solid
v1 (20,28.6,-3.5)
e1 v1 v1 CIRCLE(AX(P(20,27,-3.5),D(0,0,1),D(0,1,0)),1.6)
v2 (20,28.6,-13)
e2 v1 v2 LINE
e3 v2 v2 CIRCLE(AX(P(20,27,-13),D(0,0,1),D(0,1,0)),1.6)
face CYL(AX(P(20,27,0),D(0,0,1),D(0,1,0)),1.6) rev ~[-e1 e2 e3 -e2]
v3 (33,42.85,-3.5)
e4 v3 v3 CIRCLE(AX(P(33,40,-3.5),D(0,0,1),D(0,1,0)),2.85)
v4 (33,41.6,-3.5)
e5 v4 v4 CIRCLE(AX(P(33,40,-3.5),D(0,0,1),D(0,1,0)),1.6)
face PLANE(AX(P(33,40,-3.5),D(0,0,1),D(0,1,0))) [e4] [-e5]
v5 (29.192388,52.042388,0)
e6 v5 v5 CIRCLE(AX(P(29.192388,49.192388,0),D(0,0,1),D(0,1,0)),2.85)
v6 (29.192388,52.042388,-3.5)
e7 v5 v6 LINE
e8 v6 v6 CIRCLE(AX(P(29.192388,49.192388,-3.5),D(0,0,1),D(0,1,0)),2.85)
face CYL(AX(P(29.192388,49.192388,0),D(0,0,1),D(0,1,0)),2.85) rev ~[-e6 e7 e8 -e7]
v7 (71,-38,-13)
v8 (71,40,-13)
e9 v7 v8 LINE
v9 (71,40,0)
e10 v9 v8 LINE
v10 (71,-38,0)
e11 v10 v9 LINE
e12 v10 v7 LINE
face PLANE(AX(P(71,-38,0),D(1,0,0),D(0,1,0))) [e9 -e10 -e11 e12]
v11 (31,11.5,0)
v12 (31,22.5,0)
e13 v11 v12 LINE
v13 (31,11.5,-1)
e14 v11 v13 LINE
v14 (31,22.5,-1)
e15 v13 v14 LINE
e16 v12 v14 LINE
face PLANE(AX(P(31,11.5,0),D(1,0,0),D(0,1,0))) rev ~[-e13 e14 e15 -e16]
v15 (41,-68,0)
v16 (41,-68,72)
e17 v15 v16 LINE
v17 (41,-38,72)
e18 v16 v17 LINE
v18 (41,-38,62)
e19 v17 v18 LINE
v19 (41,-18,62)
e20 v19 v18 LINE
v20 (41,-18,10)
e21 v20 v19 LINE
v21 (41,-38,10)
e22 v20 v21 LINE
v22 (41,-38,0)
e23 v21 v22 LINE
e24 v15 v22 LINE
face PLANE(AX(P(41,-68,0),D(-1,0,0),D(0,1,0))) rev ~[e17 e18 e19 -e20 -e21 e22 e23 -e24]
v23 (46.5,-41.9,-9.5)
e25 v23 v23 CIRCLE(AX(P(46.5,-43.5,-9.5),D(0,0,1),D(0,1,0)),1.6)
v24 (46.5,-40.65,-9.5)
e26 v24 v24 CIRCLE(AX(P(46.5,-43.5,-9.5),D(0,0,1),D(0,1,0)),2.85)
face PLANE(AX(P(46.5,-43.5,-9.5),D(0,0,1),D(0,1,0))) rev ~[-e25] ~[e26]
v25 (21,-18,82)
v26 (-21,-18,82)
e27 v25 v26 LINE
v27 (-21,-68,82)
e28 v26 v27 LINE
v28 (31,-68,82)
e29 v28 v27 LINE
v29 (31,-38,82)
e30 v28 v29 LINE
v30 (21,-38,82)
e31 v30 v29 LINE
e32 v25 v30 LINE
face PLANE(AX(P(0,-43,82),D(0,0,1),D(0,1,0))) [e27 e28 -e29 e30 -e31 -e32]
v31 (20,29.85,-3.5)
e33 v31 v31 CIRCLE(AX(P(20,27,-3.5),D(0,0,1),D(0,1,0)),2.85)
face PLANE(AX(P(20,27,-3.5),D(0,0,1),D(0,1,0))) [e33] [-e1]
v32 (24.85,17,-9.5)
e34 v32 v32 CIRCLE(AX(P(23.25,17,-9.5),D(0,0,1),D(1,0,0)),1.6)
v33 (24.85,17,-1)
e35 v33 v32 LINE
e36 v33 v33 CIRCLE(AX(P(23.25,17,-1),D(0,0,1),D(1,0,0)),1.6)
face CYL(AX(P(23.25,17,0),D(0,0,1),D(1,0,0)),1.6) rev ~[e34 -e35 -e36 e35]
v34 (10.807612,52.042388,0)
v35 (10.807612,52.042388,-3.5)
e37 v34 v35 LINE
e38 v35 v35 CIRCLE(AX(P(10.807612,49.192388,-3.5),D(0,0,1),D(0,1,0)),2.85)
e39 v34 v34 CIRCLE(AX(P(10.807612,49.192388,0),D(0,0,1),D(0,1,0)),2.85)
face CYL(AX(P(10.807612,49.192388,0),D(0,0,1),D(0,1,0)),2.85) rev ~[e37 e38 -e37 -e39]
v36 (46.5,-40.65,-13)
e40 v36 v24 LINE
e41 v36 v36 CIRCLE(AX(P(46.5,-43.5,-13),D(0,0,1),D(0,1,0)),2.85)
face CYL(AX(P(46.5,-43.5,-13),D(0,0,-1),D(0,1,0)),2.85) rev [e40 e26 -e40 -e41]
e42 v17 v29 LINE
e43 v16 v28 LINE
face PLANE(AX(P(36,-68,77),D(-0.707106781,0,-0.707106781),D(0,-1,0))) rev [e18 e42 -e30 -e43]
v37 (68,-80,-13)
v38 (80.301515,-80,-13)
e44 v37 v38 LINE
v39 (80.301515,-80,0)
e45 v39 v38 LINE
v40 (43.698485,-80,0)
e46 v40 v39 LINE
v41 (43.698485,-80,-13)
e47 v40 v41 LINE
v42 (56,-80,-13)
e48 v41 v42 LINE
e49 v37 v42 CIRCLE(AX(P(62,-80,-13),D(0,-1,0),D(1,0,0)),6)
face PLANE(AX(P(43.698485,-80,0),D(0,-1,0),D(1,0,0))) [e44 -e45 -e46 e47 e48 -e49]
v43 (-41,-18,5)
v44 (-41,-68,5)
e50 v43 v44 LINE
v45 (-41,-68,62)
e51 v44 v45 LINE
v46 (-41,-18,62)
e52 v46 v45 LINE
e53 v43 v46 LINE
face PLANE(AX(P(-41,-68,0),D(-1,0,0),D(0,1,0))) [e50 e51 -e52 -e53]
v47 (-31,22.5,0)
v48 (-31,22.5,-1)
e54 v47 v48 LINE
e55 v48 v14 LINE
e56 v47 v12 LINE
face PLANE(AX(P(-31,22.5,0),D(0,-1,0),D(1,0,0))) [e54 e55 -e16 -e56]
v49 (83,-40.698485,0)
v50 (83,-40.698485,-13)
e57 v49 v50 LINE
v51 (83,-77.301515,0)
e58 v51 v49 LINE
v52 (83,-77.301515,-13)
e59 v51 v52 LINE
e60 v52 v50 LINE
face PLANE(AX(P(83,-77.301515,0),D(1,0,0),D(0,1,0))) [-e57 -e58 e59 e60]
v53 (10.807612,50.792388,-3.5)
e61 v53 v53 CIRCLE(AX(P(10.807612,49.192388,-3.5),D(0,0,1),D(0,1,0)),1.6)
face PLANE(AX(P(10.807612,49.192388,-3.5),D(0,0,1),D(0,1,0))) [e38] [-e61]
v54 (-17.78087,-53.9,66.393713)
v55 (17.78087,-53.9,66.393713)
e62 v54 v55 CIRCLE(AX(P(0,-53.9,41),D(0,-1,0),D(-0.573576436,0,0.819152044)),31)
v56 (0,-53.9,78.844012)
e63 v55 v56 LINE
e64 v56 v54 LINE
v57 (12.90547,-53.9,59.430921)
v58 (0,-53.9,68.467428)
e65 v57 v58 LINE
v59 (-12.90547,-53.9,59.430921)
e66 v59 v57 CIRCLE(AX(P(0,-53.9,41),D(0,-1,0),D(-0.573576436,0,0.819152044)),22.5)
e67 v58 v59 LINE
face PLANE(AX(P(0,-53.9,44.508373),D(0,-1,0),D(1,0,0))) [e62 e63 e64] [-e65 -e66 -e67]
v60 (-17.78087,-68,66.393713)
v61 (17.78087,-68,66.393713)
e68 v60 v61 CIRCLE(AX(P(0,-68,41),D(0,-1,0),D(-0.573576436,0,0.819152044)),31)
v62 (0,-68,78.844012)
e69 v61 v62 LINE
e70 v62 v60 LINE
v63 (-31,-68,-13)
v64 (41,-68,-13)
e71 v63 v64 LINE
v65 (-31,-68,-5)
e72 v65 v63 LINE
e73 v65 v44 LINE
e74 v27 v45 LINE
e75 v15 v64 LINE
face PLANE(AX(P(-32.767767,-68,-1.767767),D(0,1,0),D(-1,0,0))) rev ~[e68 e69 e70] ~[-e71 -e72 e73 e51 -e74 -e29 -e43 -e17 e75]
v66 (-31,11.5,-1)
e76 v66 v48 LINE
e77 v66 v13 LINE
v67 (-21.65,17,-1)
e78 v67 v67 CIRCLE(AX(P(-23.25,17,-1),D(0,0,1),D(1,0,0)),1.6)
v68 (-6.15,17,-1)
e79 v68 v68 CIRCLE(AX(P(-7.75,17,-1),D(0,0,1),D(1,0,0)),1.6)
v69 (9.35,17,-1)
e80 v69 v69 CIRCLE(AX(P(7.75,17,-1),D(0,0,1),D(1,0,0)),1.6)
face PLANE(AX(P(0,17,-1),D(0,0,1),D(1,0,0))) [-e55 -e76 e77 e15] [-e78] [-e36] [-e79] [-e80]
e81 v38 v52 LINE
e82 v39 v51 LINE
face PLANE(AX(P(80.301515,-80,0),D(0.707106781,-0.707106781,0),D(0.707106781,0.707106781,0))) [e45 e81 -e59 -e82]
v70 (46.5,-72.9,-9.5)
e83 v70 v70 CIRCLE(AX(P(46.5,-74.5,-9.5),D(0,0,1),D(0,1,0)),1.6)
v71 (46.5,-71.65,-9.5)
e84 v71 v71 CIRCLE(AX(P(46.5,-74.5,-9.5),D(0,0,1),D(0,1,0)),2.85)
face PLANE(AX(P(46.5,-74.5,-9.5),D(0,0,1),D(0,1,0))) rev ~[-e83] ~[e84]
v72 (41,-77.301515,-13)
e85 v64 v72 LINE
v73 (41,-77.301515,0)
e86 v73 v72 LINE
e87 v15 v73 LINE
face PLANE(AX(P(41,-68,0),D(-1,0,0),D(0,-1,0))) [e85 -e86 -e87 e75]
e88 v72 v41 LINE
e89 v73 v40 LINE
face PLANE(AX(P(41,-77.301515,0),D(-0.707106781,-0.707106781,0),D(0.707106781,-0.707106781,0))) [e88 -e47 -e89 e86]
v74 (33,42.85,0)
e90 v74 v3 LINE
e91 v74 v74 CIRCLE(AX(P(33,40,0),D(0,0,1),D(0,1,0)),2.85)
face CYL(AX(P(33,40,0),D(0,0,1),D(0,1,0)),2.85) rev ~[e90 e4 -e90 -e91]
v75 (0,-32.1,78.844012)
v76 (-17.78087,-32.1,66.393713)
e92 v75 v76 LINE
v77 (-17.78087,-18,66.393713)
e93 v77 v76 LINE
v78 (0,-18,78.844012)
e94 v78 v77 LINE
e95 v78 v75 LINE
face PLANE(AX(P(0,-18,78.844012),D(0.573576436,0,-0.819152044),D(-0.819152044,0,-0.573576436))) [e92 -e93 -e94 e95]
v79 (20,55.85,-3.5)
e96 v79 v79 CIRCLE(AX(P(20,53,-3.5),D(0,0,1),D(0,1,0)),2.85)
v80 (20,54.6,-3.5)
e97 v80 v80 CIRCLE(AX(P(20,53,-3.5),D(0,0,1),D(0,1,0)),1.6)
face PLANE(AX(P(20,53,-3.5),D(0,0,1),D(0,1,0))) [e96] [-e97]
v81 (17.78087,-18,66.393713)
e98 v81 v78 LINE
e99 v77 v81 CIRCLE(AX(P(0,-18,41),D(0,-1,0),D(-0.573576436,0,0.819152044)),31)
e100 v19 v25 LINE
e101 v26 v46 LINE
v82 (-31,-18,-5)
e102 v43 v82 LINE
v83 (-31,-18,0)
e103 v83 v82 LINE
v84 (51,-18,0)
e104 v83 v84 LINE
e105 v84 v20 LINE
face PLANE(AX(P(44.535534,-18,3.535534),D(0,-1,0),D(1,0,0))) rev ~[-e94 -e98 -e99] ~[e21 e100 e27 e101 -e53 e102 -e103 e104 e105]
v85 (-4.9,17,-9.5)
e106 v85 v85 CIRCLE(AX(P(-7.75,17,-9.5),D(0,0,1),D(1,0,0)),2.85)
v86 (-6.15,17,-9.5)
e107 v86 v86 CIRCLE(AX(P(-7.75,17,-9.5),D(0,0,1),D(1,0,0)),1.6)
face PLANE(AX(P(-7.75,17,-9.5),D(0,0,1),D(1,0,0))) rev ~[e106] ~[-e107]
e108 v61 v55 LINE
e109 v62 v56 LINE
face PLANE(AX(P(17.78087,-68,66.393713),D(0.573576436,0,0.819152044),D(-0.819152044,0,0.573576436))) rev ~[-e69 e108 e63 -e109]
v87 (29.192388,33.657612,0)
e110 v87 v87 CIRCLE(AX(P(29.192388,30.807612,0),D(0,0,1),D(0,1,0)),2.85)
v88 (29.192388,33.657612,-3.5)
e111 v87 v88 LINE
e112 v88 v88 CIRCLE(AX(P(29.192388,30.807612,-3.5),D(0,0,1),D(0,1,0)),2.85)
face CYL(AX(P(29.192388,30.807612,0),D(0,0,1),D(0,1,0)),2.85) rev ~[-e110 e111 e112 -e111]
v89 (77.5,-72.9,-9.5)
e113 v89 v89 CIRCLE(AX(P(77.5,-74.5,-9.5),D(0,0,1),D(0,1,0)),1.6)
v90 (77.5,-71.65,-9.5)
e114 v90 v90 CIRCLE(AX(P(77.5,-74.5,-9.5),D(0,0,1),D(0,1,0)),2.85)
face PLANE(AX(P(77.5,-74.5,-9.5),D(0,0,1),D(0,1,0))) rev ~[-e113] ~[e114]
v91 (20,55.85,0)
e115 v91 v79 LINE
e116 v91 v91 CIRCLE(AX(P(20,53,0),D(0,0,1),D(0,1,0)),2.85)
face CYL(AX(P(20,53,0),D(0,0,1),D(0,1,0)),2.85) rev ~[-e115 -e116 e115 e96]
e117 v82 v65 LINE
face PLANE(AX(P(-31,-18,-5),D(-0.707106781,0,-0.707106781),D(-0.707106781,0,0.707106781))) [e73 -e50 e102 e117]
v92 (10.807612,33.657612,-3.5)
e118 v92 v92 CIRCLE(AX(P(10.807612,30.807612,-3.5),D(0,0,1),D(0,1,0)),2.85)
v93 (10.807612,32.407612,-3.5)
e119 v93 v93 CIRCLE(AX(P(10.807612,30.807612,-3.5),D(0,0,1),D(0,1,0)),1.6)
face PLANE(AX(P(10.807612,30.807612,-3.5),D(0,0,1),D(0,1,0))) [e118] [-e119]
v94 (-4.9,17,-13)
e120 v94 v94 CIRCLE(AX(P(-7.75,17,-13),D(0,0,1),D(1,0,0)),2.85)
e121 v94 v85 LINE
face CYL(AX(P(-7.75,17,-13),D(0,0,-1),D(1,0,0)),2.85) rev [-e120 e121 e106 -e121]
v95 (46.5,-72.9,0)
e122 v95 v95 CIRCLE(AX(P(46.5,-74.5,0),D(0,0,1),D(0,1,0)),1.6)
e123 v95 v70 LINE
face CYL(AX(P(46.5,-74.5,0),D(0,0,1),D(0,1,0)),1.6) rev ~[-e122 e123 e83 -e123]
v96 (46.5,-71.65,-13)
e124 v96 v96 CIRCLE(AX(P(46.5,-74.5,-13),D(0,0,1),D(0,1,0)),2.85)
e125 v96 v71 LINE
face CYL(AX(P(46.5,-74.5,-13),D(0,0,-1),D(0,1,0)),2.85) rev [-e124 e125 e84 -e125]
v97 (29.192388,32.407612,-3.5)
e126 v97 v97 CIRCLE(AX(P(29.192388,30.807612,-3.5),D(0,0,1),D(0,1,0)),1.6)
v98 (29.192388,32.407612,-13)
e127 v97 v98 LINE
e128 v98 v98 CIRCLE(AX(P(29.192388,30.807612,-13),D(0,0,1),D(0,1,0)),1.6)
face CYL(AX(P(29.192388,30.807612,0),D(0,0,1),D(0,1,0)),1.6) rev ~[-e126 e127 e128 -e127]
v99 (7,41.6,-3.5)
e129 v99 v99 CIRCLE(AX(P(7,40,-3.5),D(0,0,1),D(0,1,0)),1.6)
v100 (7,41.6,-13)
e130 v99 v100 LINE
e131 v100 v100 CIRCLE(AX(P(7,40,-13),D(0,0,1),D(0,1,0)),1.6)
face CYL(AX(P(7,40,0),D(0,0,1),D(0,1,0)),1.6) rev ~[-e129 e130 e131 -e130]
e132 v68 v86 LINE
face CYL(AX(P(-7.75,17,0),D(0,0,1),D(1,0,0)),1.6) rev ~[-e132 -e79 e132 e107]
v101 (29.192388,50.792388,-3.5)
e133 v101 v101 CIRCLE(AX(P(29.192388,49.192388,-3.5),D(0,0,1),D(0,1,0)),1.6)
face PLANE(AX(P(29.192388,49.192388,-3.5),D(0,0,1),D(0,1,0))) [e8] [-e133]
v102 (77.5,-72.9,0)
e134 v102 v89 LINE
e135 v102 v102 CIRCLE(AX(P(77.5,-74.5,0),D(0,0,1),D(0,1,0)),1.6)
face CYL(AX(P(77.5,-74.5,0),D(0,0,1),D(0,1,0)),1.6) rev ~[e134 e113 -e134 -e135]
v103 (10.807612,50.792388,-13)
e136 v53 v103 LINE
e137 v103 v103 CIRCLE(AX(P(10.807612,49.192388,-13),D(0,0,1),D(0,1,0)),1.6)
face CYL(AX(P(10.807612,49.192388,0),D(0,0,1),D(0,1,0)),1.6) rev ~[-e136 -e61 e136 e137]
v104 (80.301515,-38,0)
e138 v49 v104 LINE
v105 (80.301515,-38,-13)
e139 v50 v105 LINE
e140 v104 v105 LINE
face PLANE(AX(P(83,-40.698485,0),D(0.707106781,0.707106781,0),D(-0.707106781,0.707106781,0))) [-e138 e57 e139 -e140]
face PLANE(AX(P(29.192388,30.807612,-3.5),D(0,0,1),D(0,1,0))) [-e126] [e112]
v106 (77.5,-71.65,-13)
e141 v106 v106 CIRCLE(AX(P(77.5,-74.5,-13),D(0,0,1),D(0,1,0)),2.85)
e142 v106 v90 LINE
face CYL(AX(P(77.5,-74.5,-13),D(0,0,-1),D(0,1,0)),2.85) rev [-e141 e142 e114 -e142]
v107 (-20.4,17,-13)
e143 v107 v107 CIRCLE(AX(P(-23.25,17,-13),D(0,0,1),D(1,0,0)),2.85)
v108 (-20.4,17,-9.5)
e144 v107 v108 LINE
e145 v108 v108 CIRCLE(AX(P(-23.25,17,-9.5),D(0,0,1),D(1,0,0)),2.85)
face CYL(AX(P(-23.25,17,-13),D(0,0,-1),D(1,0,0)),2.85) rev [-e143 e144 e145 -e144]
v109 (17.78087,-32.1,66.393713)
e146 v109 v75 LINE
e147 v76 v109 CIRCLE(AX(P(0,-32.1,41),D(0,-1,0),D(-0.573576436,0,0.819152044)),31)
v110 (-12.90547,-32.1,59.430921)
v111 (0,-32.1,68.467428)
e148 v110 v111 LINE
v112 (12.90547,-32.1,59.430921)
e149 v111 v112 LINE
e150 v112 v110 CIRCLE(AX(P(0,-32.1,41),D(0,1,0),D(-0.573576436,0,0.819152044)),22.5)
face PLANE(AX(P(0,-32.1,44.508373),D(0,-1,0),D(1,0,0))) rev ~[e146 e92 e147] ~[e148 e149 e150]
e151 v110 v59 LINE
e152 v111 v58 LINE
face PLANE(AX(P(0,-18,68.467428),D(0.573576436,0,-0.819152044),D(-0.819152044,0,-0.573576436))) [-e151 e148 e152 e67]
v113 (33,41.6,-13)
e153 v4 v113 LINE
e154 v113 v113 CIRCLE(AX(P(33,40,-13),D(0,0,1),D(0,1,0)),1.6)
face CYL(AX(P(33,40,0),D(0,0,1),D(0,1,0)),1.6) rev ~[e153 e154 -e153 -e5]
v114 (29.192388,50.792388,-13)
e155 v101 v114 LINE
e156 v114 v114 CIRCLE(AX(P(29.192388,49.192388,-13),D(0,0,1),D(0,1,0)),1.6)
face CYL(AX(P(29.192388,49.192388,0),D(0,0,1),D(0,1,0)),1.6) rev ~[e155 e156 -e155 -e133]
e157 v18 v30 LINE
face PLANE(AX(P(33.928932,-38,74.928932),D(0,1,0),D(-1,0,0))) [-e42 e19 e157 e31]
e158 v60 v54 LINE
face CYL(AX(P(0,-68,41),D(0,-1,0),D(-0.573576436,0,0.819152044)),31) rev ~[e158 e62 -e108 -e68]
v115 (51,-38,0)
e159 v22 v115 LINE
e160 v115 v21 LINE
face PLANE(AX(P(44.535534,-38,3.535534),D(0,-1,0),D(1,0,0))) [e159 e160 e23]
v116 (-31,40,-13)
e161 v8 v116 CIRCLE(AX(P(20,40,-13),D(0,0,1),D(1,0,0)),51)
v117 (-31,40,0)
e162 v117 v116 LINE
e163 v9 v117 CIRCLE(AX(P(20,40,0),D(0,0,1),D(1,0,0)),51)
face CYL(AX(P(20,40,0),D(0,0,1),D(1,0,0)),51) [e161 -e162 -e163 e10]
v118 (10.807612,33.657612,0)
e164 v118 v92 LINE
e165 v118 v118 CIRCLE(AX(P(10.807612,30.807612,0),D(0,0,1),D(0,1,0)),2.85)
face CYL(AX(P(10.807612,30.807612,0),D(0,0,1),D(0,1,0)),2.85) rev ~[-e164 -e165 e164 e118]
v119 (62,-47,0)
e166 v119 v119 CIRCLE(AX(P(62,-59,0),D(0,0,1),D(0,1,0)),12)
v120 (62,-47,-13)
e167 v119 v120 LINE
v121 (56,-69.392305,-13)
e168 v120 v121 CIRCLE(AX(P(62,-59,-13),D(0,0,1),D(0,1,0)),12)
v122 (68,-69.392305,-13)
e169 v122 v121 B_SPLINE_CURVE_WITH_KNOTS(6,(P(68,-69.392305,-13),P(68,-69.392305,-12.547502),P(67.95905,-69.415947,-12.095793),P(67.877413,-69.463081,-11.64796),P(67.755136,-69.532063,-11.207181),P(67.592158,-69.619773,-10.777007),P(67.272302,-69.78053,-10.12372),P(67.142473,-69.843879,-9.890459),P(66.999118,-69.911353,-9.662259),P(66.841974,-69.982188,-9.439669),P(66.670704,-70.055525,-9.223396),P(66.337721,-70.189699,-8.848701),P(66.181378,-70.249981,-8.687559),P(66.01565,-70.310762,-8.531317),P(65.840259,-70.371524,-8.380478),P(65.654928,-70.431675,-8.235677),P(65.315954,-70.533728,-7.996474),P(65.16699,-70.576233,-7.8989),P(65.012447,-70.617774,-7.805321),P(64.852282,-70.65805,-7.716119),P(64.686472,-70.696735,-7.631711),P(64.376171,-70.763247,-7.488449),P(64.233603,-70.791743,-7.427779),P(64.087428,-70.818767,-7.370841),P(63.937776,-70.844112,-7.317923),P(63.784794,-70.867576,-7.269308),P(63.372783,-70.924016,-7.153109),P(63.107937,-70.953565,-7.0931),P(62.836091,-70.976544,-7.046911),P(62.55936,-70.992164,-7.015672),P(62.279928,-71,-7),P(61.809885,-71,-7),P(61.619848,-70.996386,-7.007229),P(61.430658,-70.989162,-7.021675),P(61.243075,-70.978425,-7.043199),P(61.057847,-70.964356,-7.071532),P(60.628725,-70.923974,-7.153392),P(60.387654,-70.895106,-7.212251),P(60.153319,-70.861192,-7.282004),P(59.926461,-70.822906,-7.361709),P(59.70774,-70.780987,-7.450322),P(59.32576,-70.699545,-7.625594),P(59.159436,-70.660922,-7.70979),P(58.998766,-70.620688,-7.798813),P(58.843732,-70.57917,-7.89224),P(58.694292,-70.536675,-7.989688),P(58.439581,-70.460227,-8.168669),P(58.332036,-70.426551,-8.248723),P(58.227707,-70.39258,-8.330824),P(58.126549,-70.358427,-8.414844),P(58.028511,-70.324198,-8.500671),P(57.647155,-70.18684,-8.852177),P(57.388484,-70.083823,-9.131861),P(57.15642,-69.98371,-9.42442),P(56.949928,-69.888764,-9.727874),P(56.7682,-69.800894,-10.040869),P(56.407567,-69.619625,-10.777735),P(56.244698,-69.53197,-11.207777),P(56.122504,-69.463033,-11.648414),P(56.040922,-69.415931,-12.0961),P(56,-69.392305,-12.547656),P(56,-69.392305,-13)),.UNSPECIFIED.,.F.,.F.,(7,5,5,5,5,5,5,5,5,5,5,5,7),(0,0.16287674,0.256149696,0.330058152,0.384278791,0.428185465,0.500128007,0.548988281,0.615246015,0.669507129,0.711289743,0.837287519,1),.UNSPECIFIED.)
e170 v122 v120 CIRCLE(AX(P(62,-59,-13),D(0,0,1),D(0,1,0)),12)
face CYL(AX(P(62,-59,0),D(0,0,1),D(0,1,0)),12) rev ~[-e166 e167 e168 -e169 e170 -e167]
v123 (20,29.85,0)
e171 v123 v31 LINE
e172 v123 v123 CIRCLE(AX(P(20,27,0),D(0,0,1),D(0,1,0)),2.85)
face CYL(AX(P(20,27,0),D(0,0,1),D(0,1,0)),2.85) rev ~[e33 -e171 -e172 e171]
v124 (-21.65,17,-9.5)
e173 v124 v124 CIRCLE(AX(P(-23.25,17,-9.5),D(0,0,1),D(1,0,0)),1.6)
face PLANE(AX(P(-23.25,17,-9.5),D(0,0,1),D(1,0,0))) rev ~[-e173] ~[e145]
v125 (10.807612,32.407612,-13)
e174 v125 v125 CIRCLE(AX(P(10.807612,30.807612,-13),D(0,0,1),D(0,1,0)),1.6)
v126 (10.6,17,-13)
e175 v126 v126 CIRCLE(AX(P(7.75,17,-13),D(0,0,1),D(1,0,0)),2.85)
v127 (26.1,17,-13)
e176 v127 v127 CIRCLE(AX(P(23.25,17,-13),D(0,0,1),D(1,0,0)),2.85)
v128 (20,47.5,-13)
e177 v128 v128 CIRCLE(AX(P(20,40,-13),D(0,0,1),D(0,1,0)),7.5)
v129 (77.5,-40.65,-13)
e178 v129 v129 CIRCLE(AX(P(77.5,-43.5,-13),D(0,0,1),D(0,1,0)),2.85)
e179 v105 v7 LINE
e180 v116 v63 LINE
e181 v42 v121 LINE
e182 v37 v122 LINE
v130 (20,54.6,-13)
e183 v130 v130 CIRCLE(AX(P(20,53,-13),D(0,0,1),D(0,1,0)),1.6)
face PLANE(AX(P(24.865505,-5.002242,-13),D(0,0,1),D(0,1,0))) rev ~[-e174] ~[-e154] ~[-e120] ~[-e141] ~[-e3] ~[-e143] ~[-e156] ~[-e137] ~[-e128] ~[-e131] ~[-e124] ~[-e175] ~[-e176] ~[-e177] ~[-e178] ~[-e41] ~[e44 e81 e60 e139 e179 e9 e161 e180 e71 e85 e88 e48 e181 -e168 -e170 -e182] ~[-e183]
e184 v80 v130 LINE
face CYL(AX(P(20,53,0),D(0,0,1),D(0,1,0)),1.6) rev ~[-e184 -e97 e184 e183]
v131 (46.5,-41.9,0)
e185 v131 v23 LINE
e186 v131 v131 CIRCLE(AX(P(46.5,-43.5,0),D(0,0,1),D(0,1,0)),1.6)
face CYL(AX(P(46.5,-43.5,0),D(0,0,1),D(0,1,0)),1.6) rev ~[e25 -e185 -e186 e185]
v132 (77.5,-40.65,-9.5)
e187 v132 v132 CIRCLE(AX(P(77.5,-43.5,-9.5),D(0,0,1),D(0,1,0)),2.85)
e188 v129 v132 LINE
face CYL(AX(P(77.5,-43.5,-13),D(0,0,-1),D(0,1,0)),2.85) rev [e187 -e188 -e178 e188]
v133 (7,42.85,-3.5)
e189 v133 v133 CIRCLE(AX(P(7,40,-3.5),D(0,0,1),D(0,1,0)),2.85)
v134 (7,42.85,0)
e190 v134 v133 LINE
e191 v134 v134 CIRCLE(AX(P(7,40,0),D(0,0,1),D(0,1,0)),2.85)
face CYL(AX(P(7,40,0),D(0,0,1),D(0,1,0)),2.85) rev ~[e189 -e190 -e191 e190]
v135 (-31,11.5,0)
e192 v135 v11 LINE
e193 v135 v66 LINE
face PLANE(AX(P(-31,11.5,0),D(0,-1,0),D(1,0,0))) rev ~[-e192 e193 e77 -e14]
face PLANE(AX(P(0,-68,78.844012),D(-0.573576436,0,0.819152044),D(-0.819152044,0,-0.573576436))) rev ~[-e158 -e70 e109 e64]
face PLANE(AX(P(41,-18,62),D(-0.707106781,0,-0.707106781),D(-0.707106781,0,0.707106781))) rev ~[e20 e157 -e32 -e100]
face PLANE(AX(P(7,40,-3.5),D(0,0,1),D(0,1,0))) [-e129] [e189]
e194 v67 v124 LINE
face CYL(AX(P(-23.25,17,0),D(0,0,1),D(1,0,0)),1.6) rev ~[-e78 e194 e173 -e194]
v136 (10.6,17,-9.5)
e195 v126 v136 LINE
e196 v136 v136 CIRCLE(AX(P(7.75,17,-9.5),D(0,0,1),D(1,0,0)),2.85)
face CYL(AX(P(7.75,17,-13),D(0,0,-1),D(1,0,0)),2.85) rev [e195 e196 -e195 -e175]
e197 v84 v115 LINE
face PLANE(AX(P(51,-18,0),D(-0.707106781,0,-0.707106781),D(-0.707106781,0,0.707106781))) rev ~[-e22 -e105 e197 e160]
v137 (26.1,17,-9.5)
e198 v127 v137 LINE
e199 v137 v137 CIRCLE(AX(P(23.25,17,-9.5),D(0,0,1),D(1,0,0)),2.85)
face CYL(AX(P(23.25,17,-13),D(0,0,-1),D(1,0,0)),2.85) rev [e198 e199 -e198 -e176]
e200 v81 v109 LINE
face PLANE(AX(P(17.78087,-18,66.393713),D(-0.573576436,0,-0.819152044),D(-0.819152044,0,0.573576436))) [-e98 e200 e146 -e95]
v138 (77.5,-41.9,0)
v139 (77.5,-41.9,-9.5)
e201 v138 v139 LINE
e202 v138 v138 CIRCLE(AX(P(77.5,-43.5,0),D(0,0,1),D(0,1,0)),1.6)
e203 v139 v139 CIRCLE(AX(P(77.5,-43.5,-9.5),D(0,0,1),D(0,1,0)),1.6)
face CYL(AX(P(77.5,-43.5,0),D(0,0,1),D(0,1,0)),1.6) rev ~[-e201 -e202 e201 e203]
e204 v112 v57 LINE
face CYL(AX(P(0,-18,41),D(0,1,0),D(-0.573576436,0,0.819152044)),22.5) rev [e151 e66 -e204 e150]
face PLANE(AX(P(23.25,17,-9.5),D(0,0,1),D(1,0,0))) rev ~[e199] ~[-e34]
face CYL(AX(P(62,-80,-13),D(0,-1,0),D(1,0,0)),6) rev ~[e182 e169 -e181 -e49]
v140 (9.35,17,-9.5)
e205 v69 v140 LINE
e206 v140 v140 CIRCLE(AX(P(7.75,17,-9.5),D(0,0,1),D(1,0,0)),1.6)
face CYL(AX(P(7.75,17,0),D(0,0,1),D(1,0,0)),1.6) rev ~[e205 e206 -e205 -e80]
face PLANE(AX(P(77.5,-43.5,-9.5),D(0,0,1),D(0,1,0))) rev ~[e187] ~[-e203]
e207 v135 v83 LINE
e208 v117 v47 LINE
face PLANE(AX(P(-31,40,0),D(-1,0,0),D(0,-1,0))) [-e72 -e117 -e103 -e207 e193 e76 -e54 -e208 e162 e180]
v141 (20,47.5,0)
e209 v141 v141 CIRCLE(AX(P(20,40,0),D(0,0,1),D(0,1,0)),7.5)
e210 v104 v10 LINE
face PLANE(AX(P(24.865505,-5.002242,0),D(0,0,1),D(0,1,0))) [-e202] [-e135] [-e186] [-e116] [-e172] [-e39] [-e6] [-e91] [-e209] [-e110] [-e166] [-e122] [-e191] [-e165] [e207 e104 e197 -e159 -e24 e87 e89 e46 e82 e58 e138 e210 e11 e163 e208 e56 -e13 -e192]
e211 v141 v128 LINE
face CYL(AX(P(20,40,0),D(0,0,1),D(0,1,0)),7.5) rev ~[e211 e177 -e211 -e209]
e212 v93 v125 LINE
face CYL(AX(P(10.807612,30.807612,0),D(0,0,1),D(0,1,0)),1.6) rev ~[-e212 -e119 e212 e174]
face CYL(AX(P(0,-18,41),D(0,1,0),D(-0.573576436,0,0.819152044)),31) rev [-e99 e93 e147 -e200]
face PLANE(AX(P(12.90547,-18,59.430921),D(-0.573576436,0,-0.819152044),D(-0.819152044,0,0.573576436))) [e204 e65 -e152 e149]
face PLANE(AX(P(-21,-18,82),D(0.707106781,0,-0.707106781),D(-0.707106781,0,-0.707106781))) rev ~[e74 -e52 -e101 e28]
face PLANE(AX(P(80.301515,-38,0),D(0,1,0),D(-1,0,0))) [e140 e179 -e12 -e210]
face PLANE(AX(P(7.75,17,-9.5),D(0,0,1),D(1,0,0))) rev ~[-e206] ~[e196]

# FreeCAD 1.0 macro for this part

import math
import FreeCAD as App
import Part
import Sketcher
from FreeCAD import Vector
Q = App.Units.Quantity


def edges_at(feature, points):
    """Names of the edges that pass closest to the given points."""
    edges = feature.Shape.Edges
    near = lambda p: min(range(len(edges)), key=lambda i: edges[i].distToShape(Part.Vertex(*p))[0])
    return sorted({f"Edge{near(p) + 1}" for p in points})


def add_polygon(sketch, points):
    """Adds a closed chain of lines whose ends are joined by coincident constraints."""
    first, n = sketch.GeometryCount, len(points)
    for a, b in zip(points, points[1:] + points[:1]):
        sketch.addGeometry(Part.LineSegment(App.Vector(*a, 0), App.Vector(*b, 0)), False)
    for i in range(n):
        sketch.addConstraint(Sketcher.Constraint("Coincident", first + i, 2, first + (i + 1) % n, 1))

doc = App.newDocument("Part")
body = doc.addObject("PartDesign::Body", "Body")

# Sketch on XY plane
sketch1 = doc.addObject("Sketcher::SketchObject", "Sketch")
body.addObject(sketch1)
sketch1.AttachmentSupport = (doc.XY_Plane, [""])
sketch1.MapMode = "FlatFace"
sketch1.addGeometry(Part.LineSegment(Vector(41, -68, 0), Vector(41, -77.3, 0)), False)
sketch1.addGeometry(Part.LineSegment(Vector(41, -77.3, 0), Vector(43.7, -80, 0)), False)
sketch1.addGeometry(Part.LineSegment(Vector(43.7, -80, 0), Vector(80.3, -80, 0)), False)
sketch1.addGeometry(Part.LineSegment(Vector(80.3, -80, 0), Vector(83, -77.3, 0)), False)
sketch1.addGeometry(Part.LineSegment(Vector(83, -77.3, 0), Vector(83, -40.7, 0)), False)
sketch1.addGeometry(Part.LineSegment(Vector(83, -40.7, 0), Vector(80.3, -38, 0)), False)
sketch1.addGeometry(Part.LineSegment(Vector(80.3, -38, 0), Vector(71, -38, 0)), False)
sketch1.addGeometry(Part.LineSegment(Vector(71, -38, 0), Vector(71, 40, 0)), False)
sketch1.addGeometry(Part.ArcOfCircle(Part.Circle(Vector(20, 40, 0), Vector(0, 0, 1), 51), math.radians(0), math.radians(180)), False)
sketch1.addGeometry(Part.LineSegment(Vector(-31, 40, 0), Vector(-31, -68, 0)), False)
sketch1.addGeometry(Part.LineSegment(Vector(-31, -68, 0), Vector(41, -68, 0)), False)
sketch1.addGeometry(Part.Circle(Vector(77.5, -74.5, 0), Vector(0, 0, 1), 1.6), False)
sketch1.addGeometry(Part.Circle(Vector(77.5, -43.5, 0), Vector(0, 0, 1), 1.6), False)
sketch1.addGeometry(Part.Circle(Vector(62, -59, 0), Vector(0, 0, 1), 12), False)
sketch1.addGeometry(Part.Circle(Vector(46.5, -74.5, 0), Vector(0, 0, 1), 1.6), False)
sketch1.addGeometry(Part.Circle(Vector(46.5, -43.5, 0), Vector(0, 0, 1), 1.6), False)
sketch1.addGeometry(Part.Circle(Vector(29.2, 30.8, 0), Vector(0, 0, 1), 1.6), False)
sketch1.addGeometry(Part.Circle(Vector(33, 40, 0), Vector(0, 0, 1), 1.6), False)
sketch1.addGeometry(Part.Circle(Vector(29.2, 49.2, 0), Vector(0, 0, 1), 1.6), False)
sketch1.addGeometry(Part.Circle(Vector(20, 27, 0), Vector(0, 0, 1), 1.6), False)
sketch1.addGeometry(Part.Circle(Vector(20, 40, 0), Vector(0, 0, 1), 7.5), False)
sketch1.addGeometry(Part.Circle(Vector(20, 53, 0), Vector(0, 0, 1), 1.6), False)
sketch1.addGeometry(Part.Circle(Vector(10.8, 30.8, 0), Vector(0, 0, 1), 1.6), False)
sketch1.addGeometry(Part.Circle(Vector(10.8, 49.2, 0), Vector(0, 0, 1), 1.6), False)
sketch1.addGeometry(Part.Circle(Vector(7, 40, 0), Vector(0, 0, 1), 1.6), False)
sketch1.addConstraint(Sketcher.Constraint("Coincident", 0, 2, 1, 1))
sketch1.addConstraint(Sketcher.Constraint("Coincident", 1, 2, 2, 1))
sketch1.addConstraint(Sketcher.Constraint("Coincident", 2, 2, 3, 1))
sketch1.addConstraint(Sketcher.Constraint("Coincident", 3, 2, 4, 1))
sketch1.addConstraint(Sketcher.Constraint("Coincident", 4, 2, 5, 1))
sketch1.addConstraint(Sketcher.Constraint("Coincident", 5, 2, 6, 1))
sketch1.addConstraint(Sketcher.Constraint("Coincident", 6, 2, 7, 1))
sketch1.addConstraint(Sketcher.Constraint("Tangent", 7, 2, 8, 1))
sketch1.addConstraint(Sketcher.Constraint("Tangent", 8, 2, 9, 1))
sketch1.addConstraint(Sketcher.Constraint("Coincident", 9, 2, 10, 1))
sketch1.addConstraint(Sketcher.Constraint("Coincident", 10, 2, 0, 1))
sketch1.addConstraint(Sketcher.Constraint("Vertical", 0))
sketch1.addConstraint(Sketcher.Constraint("Horizontal", 2))
sketch1.addConstraint(Sketcher.Constraint("Vertical", 4))
sketch1.addConstraint(Sketcher.Constraint("Horizontal", 6))
sketch1.addConstraint(Sketcher.Constraint("Vertical", 7))
sketch1.addConstraint(Sketcher.Constraint("Vertical", 9))
sketch1.addConstraint(Sketcher.Constraint("Horizontal", 10))
sketch1.addConstraint(Sketcher.Constraint("Coincident", 20, 3, 8, 3))
sketch1.addConstraint(Sketcher.Constraint("Equal", 11, 12))
sketch1.addConstraint(Sketcher.Constraint("Equal", 12, 14))
sketch1.addConstraint(Sketcher.Constraint("Equal", 14, 15))
sketch1.addConstraint(Sketcher.Constraint("Equal", 15, 16))
sketch1.addConstraint(Sketcher.Constraint("Equal", 16, 17))
sketch1.addConstraint(Sketcher.Constraint("Equal", 17, 18))
sketch1.addConstraint(Sketcher.Constraint("Equal", 18, 19))
sketch1.addConstraint(Sketcher.Constraint("Equal", 19, 21))
sketch1.addConstraint(Sketcher.Constraint("Equal", 21, 22))
sketch1.addConstraint(Sketcher.Constraint("Equal", 22, 23))
sketch1.addConstraint(Sketcher.Constraint("Equal", 23, 24))
sketch1.addConstraint(Sketcher.Constraint("Perpendicular", 1, 3))
sketch1.addConstraint(Sketcher.Constraint("Perpendicular", 3, 5))
sketch1.addConstraint(Sketcher.Constraint("Horizontal", 11, 3, 14, 3))
sketch1.addConstraint(Sketcher.Constraint("Horizontal", 12, 3, 15, 3))
sketch1.addConstraint(Sketcher.Constraint("Horizontal", 8, 3, 17, 3))
sketch1.addConstraint(Sketcher.Constraint("Horizontal", 16, 3, 22, 3))
sketch1.addConstraint(Sketcher.Constraint("Horizontal", 18, 3, 23, 3))
sketch1.addConstraint(Sketcher.Constraint("Horizontal", 20, 3, 24, 3))
sketch1.addConstraint(Sketcher.Constraint("Horizontal", 0, 2, 3, 2))
sketch1.addConstraint(Sketcher.Constraint("Vertical", 11, 3, 12, 3))
sketch1.addConstraint(Sketcher.Constraint("Vertical", 14, 3, 15, 3))
sketch1.addConstraint(Sketcher.Constraint("Vertical", 16, 3, 18, 3))
sketch1.addConstraint(Sketcher.Constraint("Vertical", 8, 3, 19, 3))
sketch1.addConstraint(Sketcher.Constraint("Vertical", 20, 3, 21, 3))
sketch1.addConstraint(Sketcher.Constraint("Vertical", 22, 3, 23, 3))
sketch1.addConstraint(Sketcher.Constraint("Vertical", 2, 2, 5, 2))
sketch1.addConstraint(Sketcher.Constraint("Equal", 6, 0))
sketch1.addConstraint(Sketcher.Constraint("Equal", 2, 4))
sketch1.addConstraint(Sketcher.Constraint("Equal", 1, 3))
sketch1.addConstraint(Sketcher.Constraint("Diameter", 13, 24.0))
sketch1.addConstraint(Sketcher.Constraint("Diameter", 20, 15.0))
sketch1.addConstraint(Sketcher.Constraint("Radius", 8, 51.0))
sketch1.addConstraint(Sketcher.Constraint("Diameter", 11, 3.2))
sketch1.addConstraint(Sketcher.Constraint("DistanceX", 10, 1, 10, 2, 72.0))
sketch1.addConstraint(Sketcher.Constraint("DistanceY", 7, 1, 7, 2, 78.0))
sketch1.addConstraint(Sketcher.Constraint("DistanceX", -1, 1, 8, 3, 20.0))
sketch1.addConstraint(Sketcher.Constraint("DistanceY", -1, 1, 8, 3, 40.0))
sketch1.addConstraint(Sketcher.Constraint("DistanceX", -1, 1, 13, 3, 62.0))
sketch1.addConstraint(Sketcher.Constraint("DistanceY", 13, 3, -1, 1, 59.0))
sketch1.addConstraint(Sketcher.Constraint("DistanceX", -1, 1, 17, 3, 33.0))
sketch1.addConstraint(Sketcher.Constraint("DistanceY", -1, 1, 19, 3, 27.0))
sketch1.addConstraint(Sketcher.Constraint("DistanceY", -1, 1, 21, 3, 53.0))
sketch1.addConstraint(Sketcher.Constraint("DistanceX", -1, 1, 24, 3, 7.0))
sketch1.addConstraint(Sketcher.Constraint("DistanceY", 1, 2, -1, 1, 80.0))
sketch1.addConstraint(Sketcher.Constraint("DistanceY", 11, 3, 12, 3, 31.0))
sketch1.addConstraint(Sketcher.Constraint("DistanceX", 14, 3, 11, 3, 31.0))
sketch1.addConstraint(Sketcher.Constraint("DistanceX", -1, 1, 11, 3, 77.5))
sketch1.addConstraint(Sketcher.Constraint("DistanceY", 11, 3, -1, 1, 74.5))
sketch1.addConstraint(Sketcher.Constraint("DistanceX", 2, 1, 2, 2, 36.60303))
sketch1.addConstraint(Sketcher.Constraint("DistanceX", -1, 1, 16, 3, 29.192388))
sketch1.addConstraint(Sketcher.Constraint("DistanceY", -1, 1, 16, 3, 30.807612))
sketch1.addConstraint(Sketcher.Constraint("DistanceY", -1, 1, 18, 3, 49.192388))
sketch1.addConstraint(Sketcher.Constraint("DistanceX", -1, 1, 22, 3, 10.807612))
pad1 = doc.addObject("PartDesign::Pad", "Pad")
body.addObject(pad1)
pad1.Profile = sketch1
pad1.Length = 13
pad1.Reversed = True

# Sketch on XY plane
sketch2 = doc.addObject("Sketcher::SketchObject", "Sketch001")
body.addObject(sketch2)
sketch2.AttachmentSupport = (doc.XY_Plane, [""])
sketch2.MapMode = "FlatFace"
add_polygon(sketch2, [(-41, -68), (41, -68), (41, -18), (-41, -18)])  # lines 0-3
sketch2.addConstraint(Sketcher.Constraint("Horizontal", 0))
sketch2.addConstraint(Sketcher.Constraint("Vertical", 1))
sketch2.addConstraint(Sketcher.Constraint("Horizontal", 2))
sketch2.addConstraint(Sketcher.Constraint("Vertical", 3))
sketch2.addConstraint(Sketcher.Constraint("DistanceX", 0, 1, 0, 2, 82.0))
sketch2.addConstraint(Sketcher.Constraint("DistanceY", 1, 1, 1, 2, 50.0))
sketch2.addConstraint(Sketcher.Constraint("DistanceX", -1, 1, 0, 2, 41.0))
sketch2.addConstraint(Sketcher.Constraint("DistanceY", 0, 2, -1, 1, 68.0))
pad2 = doc.addObject("PartDesign::Pad", "Pad001")
body.addObject(pad2)
pad2.Profile = sketch2
pad2.Length = 82

# Sketch on XY plane
sketch3 = doc.addObject("Sketcher::SketchObject", "Sketch002")
body.addObject(sketch3)
sketch3.AttachmentSupport = (doc.XY_Plane, [""])
sketch3.MapMode = "FlatFace"
sketch3.addGeometry(Part.Circle(Vector(7, 40, 0), Vector(0, 0, 1), 2.9), False)
sketch3.addGeometry(Part.Circle(Vector(10.8, 49.2, 0), Vector(0, 0, 1), 2.9), False)
sketch3.addGeometry(Part.Circle(Vector(20, 53, 0), Vector(0, 0, 1), 2.9), False)
sketch3.addGeometry(Part.Circle(Vector(29.2, 49.2, 0), Vector(0, 0, 1), 2.9), False)
sketch3.addGeometry(Part.Circle(Vector(33, 40, 0), Vector(0, 0, 1), 2.9), False)
sketch3.addGeometry(Part.Circle(Vector(29.2, 30.8, 0), Vector(0, 0, 1), 2.9), False)
sketch3.addGeometry(Part.Circle(Vector(20, 27, 0), Vector(0, 0, 1), 2.9), False)
sketch3.addGeometry(Part.Circle(Vector(10.8, 30.8, 0), Vector(0, 0, 1), 2.9), False)
sketch3.addConstraint(Sketcher.Constraint("Equal", 0, 1))
sketch3.addConstraint(Sketcher.Constraint("Equal", 1, 2))
sketch3.addConstraint(Sketcher.Constraint("Equal", 2, 3))
sketch3.addConstraint(Sketcher.Constraint("Equal", 3, 4))
sketch3.addConstraint(Sketcher.Constraint("Equal", 4, 5))
sketch3.addConstraint(Sketcher.Constraint("Equal", 5, 6))
sketch3.addConstraint(Sketcher.Constraint("Equal", 6, 7))
sketch3.addConstraint(Sketcher.Constraint("Horizontal", 1, 3, 3, 3))
sketch3.addConstraint(Sketcher.Constraint("Horizontal", 0, 3, 4, 3))
sketch3.addConstraint(Sketcher.Constraint("Horizontal", 5, 3, 7, 3))
sketch3.addConstraint(Sketcher.Constraint("Vertical", 3, 3, 5, 3))
sketch3.addConstraint(Sketcher.Constraint("Vertical", 2, 3, 6, 3))
sketch3.addConstraint(Sketcher.Constraint("Vertical", 1, 3, 7, 3))
sketch3.addConstraint(Sketcher.Constraint("Diameter", 0, 5.7))
sketch3.addConstraint(Sketcher.Constraint("DistanceX", -1, 1, 0, 3, 7.0))
sketch3.addConstraint(Sketcher.Constraint("DistanceY", -1, 1, 0, 3, 40.0))
sketch3.addConstraint(Sketcher.Constraint("DistanceX", -1, 1, 2, 3, 20.0))
sketch3.addConstraint(Sketcher.Constraint("DistanceY", -1, 1, 2, 3, 53.0))
sketch3.addConstraint(Sketcher.Constraint("DistanceX", -1, 1, 4, 3, 33.0))
sketch3.addConstraint(Sketcher.Constraint("DistanceY", -1, 1, 6, 3, 27.0))
sketch3.addConstraint(Sketcher.Constraint("DistanceX", -1, 1, 1, 3, 10.807612))
sketch3.addConstraint(Sketcher.Constraint("DistanceY", -1, 1, 1, 3, 49.192388))
sketch3.addConstraint(Sketcher.Constraint("DistanceX", -1, 1, 3, 3, 29.192388))
sketch3.addConstraint(Sketcher.Constraint("DistanceY", -1, 1, 5, 3, 30.807612))
pocket1 = doc.addObject("PartDesign::Pocket", "Pocket")
body.addObject(pocket1)
pocket1.Profile = sketch3
pocket1.Length = 3.5

# Sketch on XZ plane
sketch4 = doc.addObject("Sketcher::SketchObject", "Sketch003")
body.addObject(sketch4)
sketch4.AttachmentSupport = (doc.XZ_Plane, [""])
sketch4.MapMode = "FlatFace"
sketch4.AttachmentOffset = App.Placement(Vector(0, 0, 18), App.Rotation())
sketch4.addGeometry(Part.LineSegment(Vector(0, 79, 0), Vector(18, 66, 0)), False)
sketch4.addGeometry(Part.ArcOfCircle(Part.Circle(Vector(0, 41, 0), Vector(0, 0, 1), 31), math.radians(125), math.radians(415)), False)
sketch4.addGeometry(Part.LineSegment(Vector(-18, 66, 0), Vector(0, 79, 0)), False)
sketch4.addConstraint(Sketcher.Constraint("Tangent", 0, 2, 1, 2))
sketch4.addConstraint(Sketcher.Constraint("Tangent", 1, 1, 2, 1))
sketch4.addConstraint(Sketcher.Constraint("Coincident", 2, 2, 0, 1))
sketch4.addConstraint(Sketcher.Constraint("Symmetric", 0, 2, 1, 1, -2))
sketch4.addConstraint(Sketcher.Constraint("Radius", 1, 31.0))
sketch4.addConstraint(Sketcher.Constraint("Angle", 0, Q("-35 deg")))
sketch4.addConstraint(Sketcher.Constraint("DistanceY", -1, 1, 1, 3, 41.0))
pocket2 = doc.addObject("PartDesign::Pocket", "Pocket001")
body.addObject(pocket2)
pocket2.Profile = sketch4
pocket2.Length = 14.1
pocket2.Reversed = True

# Sketch on XZ plane
sketch5 = doc.addObject("Sketcher::SketchObject", "Sketch004")
body.addObject(sketch5)
sketch5.AttachmentSupport = (doc.XZ_Plane, [""])
sketch5.MapMode = "FlatFace"
sketch5.AttachmentOffset = App.Placement(Vector(0, 0, 68), App.Rotation())
sketch5.addGeometry(Part.LineSegment(Vector(0, 79, 0), Vector(18, 66, 0)), False)
sketch5.addGeometry(Part.ArcOfCircle(Part.Circle(Vector(0, 41, 0), Vector(0, 0, 1), 31), math.radians(125), math.radians(415)), False)
sketch5.addGeometry(Part.LineSegment(Vector(-18, 66, 0), Vector(0, 79, 0)), False)
sketch5.addGeometry(Part.LineSegment(Vector(13, 59, 0), Vector(0, 68, 0)), False)
sketch5.addGeometry(Part.LineSegment(Vector(0, 68, 0), Vector(-13, 59, 0)), False)
sketch5.addGeometry(Part.ArcOfCircle(Part.Circle(Vector(0, 41, 0), Vector(0, 0, 1), 22), math.radians(125), math.radians(415)), False)
sketch5.addConstraint(Sketcher.Constraint("Tangent", 0, 2, 1, 2))
sketch5.addConstraint(Sketcher.Constraint("Tangent", 1, 1, 2, 1))
sketch5.addConstraint(Sketcher.Constraint("Coincident", 2, 2, 0, 1))
sketch5.addConstraint(Sketcher.Constraint("Coincident", 3, 2, 4, 1))
sketch5.addConstraint(Sketcher.Constraint("Tangent", 4, 2, 5, 1))
sketch5.addConstraint(Sketcher.Constraint("Tangent", 5, 2, 3, 1))
sketch5.addConstraint(Sketcher.Constraint("Coincident", 5, 3, 1, 3))
sketch5.addConstraint(Sketcher.Constraint("Symmetric", 0, 2, 1, 1, -2))
sketch5.addConstraint(Sketcher.Constraint("PointOnObject", 3, 2, -2))
sketch5.addConstraint(Sketcher.Constraint("Parallel", 0, 3))
sketch5.addConstraint(Sketcher.Constraint("Radius", 1, 31.0))
sketch5.addConstraint(Sketcher.Constraint("Radius", 5, 22.5))
sketch5.addConstraint(Sketcher.Constraint("Angle", 0, Q("-35 deg")))
sketch5.addConstraint(Sketcher.Constraint("DistanceY", -1, 1, 1, 3, 41.0))
pocket3 = doc.addObject("PartDesign::Pocket", "Pocket002")
body.addObject(pocket3)
pocket3.Profile = sketch5
pocket3.Length = 14.1

# Sketch on XZ plane
sketch6 = doc.addObject("Sketcher::SketchObject", "Sketch005")
body.addObject(sketch6)
sketch6.AttachmentSupport = (doc.XZ_Plane, [""])
sketch6.MapMode = "FlatFace"
sketch6.AttachmentOffset = App.Placement(Vector(0, 0, 18), App.Rotation())
sketch6.addGeometry(Part.LineSegment(Vector(0, 68, 0), Vector(13, 59, 0)), False)
sketch6.addGeometry(Part.ArcOfCircle(Part.Circle(Vector(0, 41, 0), Vector(0, 0, 1), 22), math.radians(125), math.radians(415)), False)
sketch6.addGeometry(Part.LineSegment(Vector(-13, 59, 0), Vector(0, 68, 0)), False)
sketch6.addConstraint(Sketcher.Constraint("Tangent", 0, 2, 1, 2))
sketch6.addConstraint(Sketcher.Constraint("Tangent", 1, 1, 2, 1))
sketch6.addConstraint(Sketcher.Constraint("Coincident", 2, 2, 0, 1))
sketch6.addConstraint(Sketcher.Constraint("Symmetric", 0, 2, 1, 1, -2))
sketch6.addConstraint(Sketcher.Constraint("Radius", 1, 22.5))
sketch6.addConstraint(Sketcher.Constraint("Angle", 0, Q("-35 deg")))
sketch6.addConstraint(Sketcher.Constraint("DistanceY", -1, 1, 1, 3, 41.0))
pocket4 = doc.addObject("PartDesign::Pocket", "Pocket003")
body.addObject(pocket4)
pocket4.Profile = sketch6
pocket4.Type = "ThroughAll"
pocket4.Midplane = True

# Sketch on XY plane
sketch7 = doc.addObject("Sketcher::SketchObject", "Sketch006")
body.addObject(sketch7)
sketch7.AttachmentSupport = (doc.XY_Plane, [""])
sketch7.MapMode = "FlatFace"
add_polygon(sketch7, [(-31, 22), (-31, 12), (31, 12), (31, 22)])  # lines 0-3
sketch7.addConstraint(Sketcher.Constraint("Vertical", 0))
sketch7.addConstraint(Sketcher.Constraint("Horizontal", 1))
sketch7.addConstraint(Sketcher.Constraint("Vertical", 2))
sketch7.addConstraint(Sketcher.Constraint("Horizontal", 3))
sketch7.addConstraint(Sketcher.Constraint("DistanceX", 1, 1, 1, 2, 62.0))
sketch7.addConstraint(Sketcher.Constraint("DistanceY", 0, 2, 0, 1, 11.0))
sketch7.addConstraint(Sketcher.Constraint("DistanceX", 0, 2, -1, 1, 31.0))
sketch7.addConstraint(Sketcher.Constraint("DistanceY", -1, 1, 0, 2, 11.5))
pocket5 = doc.addObject("PartDesign::Pocket", "Pocket004")
body.addObject(pocket5)
pocket5.Profile = sketch7
pocket5.Length = 1

# Sketch on XY plane
sketch8 = doc.addObject("Sketcher::SketchObject", "Sketch007")
body.addObject(sketch8)
sketch8.AttachmentSupport = (doc.XY_Plane, [""])
sketch8.MapMode = "FlatFace"
sketch8.addGeometry(Part.Circle(Vector(-23.2, 17, 0), Vector(0, 0, 1), 1.6), False)
sketch8.addGeometry(Part.Circle(Vector(-7.8, 17, 0), Vector(0, 0, 1), 1.6), False)
sketch8.addGeometry(Part.Circle(Vector(7.8, 17, 0), Vector(0, 0, 1), 1.6), False)
sketch8.addGeometry(Part.Circle(Vector(23.2, 17, 0), Vector(0, 0, 1), 1.6), False)
sketch8.addConstraint(Sketcher.Constraint("Equal", 0, 1))
sketch8.addConstraint(Sketcher.Constraint("Equal", 1, 2))
sketch8.addConstraint(Sketcher.Constraint("Equal", 2, 3))
sketch8.addConstraint(Sketcher.Constraint("Symmetric", 1, 3, 2, 3, -2))
sketch8.addConstraint(Sketcher.Constraint("Symmetric", 0, 3, 3, 3, -2))
sketch8.addConstraint(Sketcher.Constraint("Horizontal", 0, 3, 1, 3))
sketch8.addConstraint(Sketcher.Constraint("Diameter", 0, 3.2))
sketch8.addConstraint(Sketcher.Constraint("DistanceY", -1, 1, 0, 3, 17.0))
sketch8.addConstraint(Sketcher.Constraint("DistanceX", 0, 3, 2, 3, 31.0))
sketch8.addConstraint(Sketcher.Constraint("DistanceX", 0, 3, 1, 3, 15.5))
pocket6 = doc.addObject("PartDesign::Pocket", "Pocket005")
body.addObject(pocket6)
pocket6.Profile = sketch8
pocket6.Type = "ThroughAll"

# Sketch on XY plane
sketch9 = doc.addObject("Sketcher::SketchObject", "Sketch008")
body.addObject(sketch9)
sketch9.AttachmentSupport = (doc.XY_Plane, [""])
sketch9.MapMode = "FlatFace"
sketch9.AttachmentOffset = App.Placement(Vector(0, 0, -13), App.Rotation())
sketch9.addGeometry(Part.Circle(Vector(-23.2, 17, 0), Vector(0, 0, 1), 2.9), False)
sketch9.addGeometry(Part.Circle(Vector(-7.8, 17, 0), Vector(0, 0, 1), 2.9), False)
sketch9.addGeometry(Part.Circle(Vector(7.8, 17, 0), Vector(0, 0, 1), 2.9), False)
sketch9.addGeometry(Part.Circle(Vector(23.2, 17, 0), Vector(0, 0, 1), 2.9), False)
sketch9.addConstraint(Sketcher.Constraint("Equal", 0, 1))
sketch9.addConstraint(Sketcher.Constraint("Equal", 1, 2))
sketch9.addConstraint(Sketcher.Constraint("Equal", 2, 3))
sketch9.addConstraint(Sketcher.Constraint("Symmetric", 1, 3, 2, 3, -2))
sketch9.addConstraint(Sketcher.Constraint("Symmetric", 0, 3, 3, 3, -2))
sketch9.addConstraint(Sketcher.Constraint("Horizontal", 0, 3, 1, 3))
sketch9.addConstraint(Sketcher.Constraint("Diameter", 0, 5.7))
sketch9.addConstraint(Sketcher.Constraint("DistanceY", -1, 1, 0, 3, 17.0))
sketch9.addConstraint(Sketcher.Constraint("DistanceX", 0, 3, 2, 3, 31.0))
sketch9.addConstraint(Sketcher.Constraint("DistanceX", 0, 3, 1, 3, 15.5))
pocket7 = doc.addObject("PartDesign::Pocket", "Pocket006")
body.addObject(pocket7)
pocket7.Profile = sketch9
pocket7.Length = 3.5
pocket7.Reversed = True

# Sketch on XY plane
sketch10 = doc.addObject("Sketcher::SketchObject", "Sketch009")
body.addObject(sketch10)
sketch10.AttachmentSupport = (doc.XY_Plane, [""])
sketch10.MapMode = "FlatFace"
sketch10.AttachmentOffset = App.Placement(Vector(0, 0, -13), App.Rotation())
sketch10.addGeometry(Part.Circle(Vector(46.5, -74.5, 0), Vector(0, 0, 1), 2.9), False)
sketch10.addGeometry(Part.Circle(Vector(46.5, -43.5, 0), Vector(0, 0, 1), 2.9), False)
sketch10.addGeometry(Part.Circle(Vector(77.5, -43.5, 0), Vector(0, 0, 1), 2.9), False)
sketch10.addGeometry(Part.Circle(Vector(77.5, -74.5, 0), Vector(0, 0, 1), 2.9), False)
sketch10.addConstraint(Sketcher.Constraint("Equal", 0, 1))
sketch10.addConstraint(Sketcher.Constraint("Equal", 1, 2))
sketch10.addConstraint(Sketcher.Constraint("Equal", 2, 3))
sketch10.addConstraint(Sketcher.Constraint("Horizontal", 1, 3, 2, 3))
sketch10.addConstraint(Sketcher.Constraint("Horizontal", 0, 3, 3, 3))
sketch10.addConstraint(Sketcher.Constraint("Vertical", 0, 3, 1, 3))
sketch10.addConstraint(Sketcher.Constraint("Vertical", 2, 3, 3, 3))
sketch10.addConstraint(Sketcher.Constraint("Diameter", 0, 5.7))
sketch10.addConstraint(Sketcher.Constraint("DistanceY", 0, 3, 1, 3, 31.0))
sketch10.addConstraint(Sketcher.Constraint("DistanceX", 1, 3, 2, 3, 31.0))
sketch10.addConstraint(Sketcher.Constraint("DistanceX", -1, 1, 0, 3, 46.5))
sketch10.addConstraint(Sketcher.Constraint("DistanceY", 0, 3, -1, 1, 74.5))
pocket8 = doc.addObject("PartDesign::Pocket", "Pocket007")
body.addObject(pocket8)
pocket8.Profile = sketch10
pocket8.Length = 3.5
pocket8.Reversed = True

# Sketch on XZ plane
sketch11 = doc.addObject("Sketcher::SketchObject", "Sketch010")
body.addObject(sketch11)
sketch11.AttachmentSupport = (doc.XZ_Plane, [""])
sketch11.MapMode = "FlatFace"
sketch11.AttachmentOffset = App.Placement(Vector(0, 0, 80), App.Rotation())
sketch11.addGeometry(Part.LineSegment(Vector(56, -13, 0), Vector(68, -13, 0)), False)
sketch11.addGeometry(Part.ArcOfCircle(Part.Circle(Vector(62, -13, 0), Vector(0, 0, 1), 6), math.radians(0), math.radians(180)), False)
sketch11.addConstraint(Sketcher.Constraint("Coincident", 0, 1, 1, 2))
sketch11.addConstraint(Sketcher.Constraint("Coincident", 1, 1, 0, 2))
sketch11.addConstraint(Sketcher.Constraint("Horizontal", 0))
sketch11.addConstraint(Sketcher.Constraint("Horizontal", 1, 3, 0, 1))
sketch11.addConstraint(Sketcher.Constraint("Radius", 1, 6.0))
sketch11.addConstraint(Sketcher.Constraint("DistanceX", -1, 1, 1, 3, 62.0))
sketch11.addConstraint(Sketcher.Constraint("DistanceY", 1, 3, -1, 1, 13.0))
pocket9 = doc.addObject("PartDesign::Pocket", "Pocket008")
body.addObject(pocket9)
pocket9.Profile = sketch11
pocket9.Length = 12.5

# Sketch on XZ plane
sketch12 = doc.addObject("Sketcher::SketchObject", "Sketch011")
body.addObject(sketch12)
sketch12.AttachmentSupport = (doc.XZ_Plane, [""])
sketch12.MapMode = "FlatFace"
sketch12.AttachmentOffset = App.Placement(Vector(0, 0, 18), App.Rotation())
add_polygon(sketch12, [(-36, 0), (-31, 0), (-31, -5)])  # lines 0-2
sketch12.addConstraint(Sketcher.Constraint("Horizontal", 0))
sketch12.addConstraint(Sketcher.Constraint("Vertical", 1))
sketch12.addConstraint(Sketcher.Constraint("PointOnObject", 0, 2, -1))
sketch12.addConstraint(Sketcher.Constraint("Equal", 0, 1))
sketch12.addConstraint(Sketcher.Constraint("DistanceX", 0, 1, 0, 2, 5.0))
sketch12.addConstraint(Sketcher.Constraint("DistanceX", 0, 2, -1, 1, 31.0))
pad3 = doc.addObject("PartDesign::Pad", "Pad002")
body.addObject(pad3)
pad3.Profile = sketch12
pad3.Length = 50

# Sketch on XZ plane
sketch13 = doc.addObject("Sketcher::SketchObject", "Sketch012")
body.addObject(sketch13)
sketch13.AttachmentSupport = (doc.XZ_Plane, [""])
sketch13.MapMode = "FlatFace"
sketch13.AttachmentOffset = App.Placement(Vector(0, 0, 18), App.Rotation())
add_polygon(sketch13, [(-21, 82), (-41, 62), (-41, 82)])  # lines 0-2
add_polygon(sketch13, [(-41, 5), (-36, 0), (-41, 0)])  # lines 3-5
sketch13.addConstraint(Sketcher.Constraint("Vertical", 1))
sketch13.addConstraint(Sketcher.Constraint("Horizontal", 2))
sketch13.addConstraint(Sketcher.Constraint("Horizontal", 4))
sketch13.addConstraint(Sketcher.Constraint("Vertical", 5))
sketch13.addConstraint(Sketcher.Constraint("PointOnObject", 3, 2, -1))
sketch13.addConstraint(Sketcher.Constraint("Perpendicular", 0, 3))
sketch13.addConstraint(Sketcher.Constraint("Vertical", 1, 2, 4, 2))
sketch13.addConstraint(Sketcher.Constraint("Equal", 2, 1))
sketch13.addConstraint(Sketcher.Constraint("DistanceX", 2, 1, 2, 2, 20.0))
sketch13.addConstraint(Sketcher.Constraint("DistanceX", 4, 2, 4, 1, 5.0))
sketch13.addConstraint(Sketcher.Constraint("DistanceX", 0, 2, -1, 1, 41.0))
sketch13.addConstraint(Sketcher.Constraint("DistanceY", -1, 1, 0, 2, 62.0))
pocket10 = doc.addObject("PartDesign::Pocket", "Pocket009")
body.addObject(pocket10)
pocket10.Profile = sketch13
pocket10.Length = 50.5
pocket10.Reversed = True

# Sketch on XZ plane
sketch14 = doc.addObject("Sketcher::SketchObject", "Sketch013")
body.addObject(sketch14)
sketch14.AttachmentSupport = (doc.XZ_Plane, [""])
sketch14.MapMode = "FlatFace"
sketch14.AttachmentOffset = App.Placement(Vector(0, 0, 18), App.Rotation())
add_polygon(sketch14, [(41, 10), (51, 0), (41, 0)])  # lines 0-2
sketch14.addConstraint(Sketcher.Constraint("Horizontal", 1))
sketch14.addConstraint(Sketcher.Constraint("Vertical", 2))
sketch14.addConstraint(Sketcher.Constraint("PointOnObject", 0, 2, -1))
sketch14.addConstraint(Sketcher.Constraint("Equal", 1, 2))
sketch14.addConstraint(Sketcher.Constraint("DistanceX", 1, 2, 1, 1, 10.0))
sketch14.addConstraint(Sketcher.Constraint("DistanceX", -1, 1, 0, 2, 51.0))
pad4 = doc.addObject("PartDesign::Pad", "Pad003")
body.addObject(pad4)
pad4.Profile = sketch14
pad4.Length = 20

# Sketch on XZ plane
sketch15 = doc.addObject("Sketcher::SketchObject", "Sketch014")
body.addObject(sketch15)
sketch15.AttachmentSupport = (doc.XZ_Plane, [""])
sketch15.MapMode = "FlatFace"
sketch15.AttachmentOffset = App.Placement(Vector(0, 0, 18), App.Rotation())
add_polygon(sketch15, [(41, 62), (21, 82), (41, 82)])  # lines 0-2
sketch15.addConstraint(Sketcher.Constraint("Horizontal", 1))
sketch15.addConstraint(Sketcher.Constraint("Vertical", 2))
sketch15.addConstraint(Sketcher.Constraint("Equal", 1, 2))
sketch15.addConstraint(Sketcher.Constraint("DistanceX", 1, 1, 1, 2, 20.0))
sketch15.addConstraint(Sketcher.Constraint("DistanceX", -1, 1, 0, 2, 21.0))
sketch15.addConstraint(Sketcher.Constraint("DistanceY", -1, 1, 0, 2, 82.0))
pocket11 = doc.addObject("PartDesign::Pocket", "Pocket010")
body.addObject(pocket11)
pocket11.Profile = sketch15
pocket11.Length = 20
pocket11.Reversed = True
doc.recompute()

chamfer = doc.addObject("PartDesign::Chamfer", "Chamfer")
body.addObject(chamfer)
chamfer.Base = (pocket11, edges_at(pocket11, [(41, -53, 82)]))
chamfer.Size = 10

doc.recompute()
